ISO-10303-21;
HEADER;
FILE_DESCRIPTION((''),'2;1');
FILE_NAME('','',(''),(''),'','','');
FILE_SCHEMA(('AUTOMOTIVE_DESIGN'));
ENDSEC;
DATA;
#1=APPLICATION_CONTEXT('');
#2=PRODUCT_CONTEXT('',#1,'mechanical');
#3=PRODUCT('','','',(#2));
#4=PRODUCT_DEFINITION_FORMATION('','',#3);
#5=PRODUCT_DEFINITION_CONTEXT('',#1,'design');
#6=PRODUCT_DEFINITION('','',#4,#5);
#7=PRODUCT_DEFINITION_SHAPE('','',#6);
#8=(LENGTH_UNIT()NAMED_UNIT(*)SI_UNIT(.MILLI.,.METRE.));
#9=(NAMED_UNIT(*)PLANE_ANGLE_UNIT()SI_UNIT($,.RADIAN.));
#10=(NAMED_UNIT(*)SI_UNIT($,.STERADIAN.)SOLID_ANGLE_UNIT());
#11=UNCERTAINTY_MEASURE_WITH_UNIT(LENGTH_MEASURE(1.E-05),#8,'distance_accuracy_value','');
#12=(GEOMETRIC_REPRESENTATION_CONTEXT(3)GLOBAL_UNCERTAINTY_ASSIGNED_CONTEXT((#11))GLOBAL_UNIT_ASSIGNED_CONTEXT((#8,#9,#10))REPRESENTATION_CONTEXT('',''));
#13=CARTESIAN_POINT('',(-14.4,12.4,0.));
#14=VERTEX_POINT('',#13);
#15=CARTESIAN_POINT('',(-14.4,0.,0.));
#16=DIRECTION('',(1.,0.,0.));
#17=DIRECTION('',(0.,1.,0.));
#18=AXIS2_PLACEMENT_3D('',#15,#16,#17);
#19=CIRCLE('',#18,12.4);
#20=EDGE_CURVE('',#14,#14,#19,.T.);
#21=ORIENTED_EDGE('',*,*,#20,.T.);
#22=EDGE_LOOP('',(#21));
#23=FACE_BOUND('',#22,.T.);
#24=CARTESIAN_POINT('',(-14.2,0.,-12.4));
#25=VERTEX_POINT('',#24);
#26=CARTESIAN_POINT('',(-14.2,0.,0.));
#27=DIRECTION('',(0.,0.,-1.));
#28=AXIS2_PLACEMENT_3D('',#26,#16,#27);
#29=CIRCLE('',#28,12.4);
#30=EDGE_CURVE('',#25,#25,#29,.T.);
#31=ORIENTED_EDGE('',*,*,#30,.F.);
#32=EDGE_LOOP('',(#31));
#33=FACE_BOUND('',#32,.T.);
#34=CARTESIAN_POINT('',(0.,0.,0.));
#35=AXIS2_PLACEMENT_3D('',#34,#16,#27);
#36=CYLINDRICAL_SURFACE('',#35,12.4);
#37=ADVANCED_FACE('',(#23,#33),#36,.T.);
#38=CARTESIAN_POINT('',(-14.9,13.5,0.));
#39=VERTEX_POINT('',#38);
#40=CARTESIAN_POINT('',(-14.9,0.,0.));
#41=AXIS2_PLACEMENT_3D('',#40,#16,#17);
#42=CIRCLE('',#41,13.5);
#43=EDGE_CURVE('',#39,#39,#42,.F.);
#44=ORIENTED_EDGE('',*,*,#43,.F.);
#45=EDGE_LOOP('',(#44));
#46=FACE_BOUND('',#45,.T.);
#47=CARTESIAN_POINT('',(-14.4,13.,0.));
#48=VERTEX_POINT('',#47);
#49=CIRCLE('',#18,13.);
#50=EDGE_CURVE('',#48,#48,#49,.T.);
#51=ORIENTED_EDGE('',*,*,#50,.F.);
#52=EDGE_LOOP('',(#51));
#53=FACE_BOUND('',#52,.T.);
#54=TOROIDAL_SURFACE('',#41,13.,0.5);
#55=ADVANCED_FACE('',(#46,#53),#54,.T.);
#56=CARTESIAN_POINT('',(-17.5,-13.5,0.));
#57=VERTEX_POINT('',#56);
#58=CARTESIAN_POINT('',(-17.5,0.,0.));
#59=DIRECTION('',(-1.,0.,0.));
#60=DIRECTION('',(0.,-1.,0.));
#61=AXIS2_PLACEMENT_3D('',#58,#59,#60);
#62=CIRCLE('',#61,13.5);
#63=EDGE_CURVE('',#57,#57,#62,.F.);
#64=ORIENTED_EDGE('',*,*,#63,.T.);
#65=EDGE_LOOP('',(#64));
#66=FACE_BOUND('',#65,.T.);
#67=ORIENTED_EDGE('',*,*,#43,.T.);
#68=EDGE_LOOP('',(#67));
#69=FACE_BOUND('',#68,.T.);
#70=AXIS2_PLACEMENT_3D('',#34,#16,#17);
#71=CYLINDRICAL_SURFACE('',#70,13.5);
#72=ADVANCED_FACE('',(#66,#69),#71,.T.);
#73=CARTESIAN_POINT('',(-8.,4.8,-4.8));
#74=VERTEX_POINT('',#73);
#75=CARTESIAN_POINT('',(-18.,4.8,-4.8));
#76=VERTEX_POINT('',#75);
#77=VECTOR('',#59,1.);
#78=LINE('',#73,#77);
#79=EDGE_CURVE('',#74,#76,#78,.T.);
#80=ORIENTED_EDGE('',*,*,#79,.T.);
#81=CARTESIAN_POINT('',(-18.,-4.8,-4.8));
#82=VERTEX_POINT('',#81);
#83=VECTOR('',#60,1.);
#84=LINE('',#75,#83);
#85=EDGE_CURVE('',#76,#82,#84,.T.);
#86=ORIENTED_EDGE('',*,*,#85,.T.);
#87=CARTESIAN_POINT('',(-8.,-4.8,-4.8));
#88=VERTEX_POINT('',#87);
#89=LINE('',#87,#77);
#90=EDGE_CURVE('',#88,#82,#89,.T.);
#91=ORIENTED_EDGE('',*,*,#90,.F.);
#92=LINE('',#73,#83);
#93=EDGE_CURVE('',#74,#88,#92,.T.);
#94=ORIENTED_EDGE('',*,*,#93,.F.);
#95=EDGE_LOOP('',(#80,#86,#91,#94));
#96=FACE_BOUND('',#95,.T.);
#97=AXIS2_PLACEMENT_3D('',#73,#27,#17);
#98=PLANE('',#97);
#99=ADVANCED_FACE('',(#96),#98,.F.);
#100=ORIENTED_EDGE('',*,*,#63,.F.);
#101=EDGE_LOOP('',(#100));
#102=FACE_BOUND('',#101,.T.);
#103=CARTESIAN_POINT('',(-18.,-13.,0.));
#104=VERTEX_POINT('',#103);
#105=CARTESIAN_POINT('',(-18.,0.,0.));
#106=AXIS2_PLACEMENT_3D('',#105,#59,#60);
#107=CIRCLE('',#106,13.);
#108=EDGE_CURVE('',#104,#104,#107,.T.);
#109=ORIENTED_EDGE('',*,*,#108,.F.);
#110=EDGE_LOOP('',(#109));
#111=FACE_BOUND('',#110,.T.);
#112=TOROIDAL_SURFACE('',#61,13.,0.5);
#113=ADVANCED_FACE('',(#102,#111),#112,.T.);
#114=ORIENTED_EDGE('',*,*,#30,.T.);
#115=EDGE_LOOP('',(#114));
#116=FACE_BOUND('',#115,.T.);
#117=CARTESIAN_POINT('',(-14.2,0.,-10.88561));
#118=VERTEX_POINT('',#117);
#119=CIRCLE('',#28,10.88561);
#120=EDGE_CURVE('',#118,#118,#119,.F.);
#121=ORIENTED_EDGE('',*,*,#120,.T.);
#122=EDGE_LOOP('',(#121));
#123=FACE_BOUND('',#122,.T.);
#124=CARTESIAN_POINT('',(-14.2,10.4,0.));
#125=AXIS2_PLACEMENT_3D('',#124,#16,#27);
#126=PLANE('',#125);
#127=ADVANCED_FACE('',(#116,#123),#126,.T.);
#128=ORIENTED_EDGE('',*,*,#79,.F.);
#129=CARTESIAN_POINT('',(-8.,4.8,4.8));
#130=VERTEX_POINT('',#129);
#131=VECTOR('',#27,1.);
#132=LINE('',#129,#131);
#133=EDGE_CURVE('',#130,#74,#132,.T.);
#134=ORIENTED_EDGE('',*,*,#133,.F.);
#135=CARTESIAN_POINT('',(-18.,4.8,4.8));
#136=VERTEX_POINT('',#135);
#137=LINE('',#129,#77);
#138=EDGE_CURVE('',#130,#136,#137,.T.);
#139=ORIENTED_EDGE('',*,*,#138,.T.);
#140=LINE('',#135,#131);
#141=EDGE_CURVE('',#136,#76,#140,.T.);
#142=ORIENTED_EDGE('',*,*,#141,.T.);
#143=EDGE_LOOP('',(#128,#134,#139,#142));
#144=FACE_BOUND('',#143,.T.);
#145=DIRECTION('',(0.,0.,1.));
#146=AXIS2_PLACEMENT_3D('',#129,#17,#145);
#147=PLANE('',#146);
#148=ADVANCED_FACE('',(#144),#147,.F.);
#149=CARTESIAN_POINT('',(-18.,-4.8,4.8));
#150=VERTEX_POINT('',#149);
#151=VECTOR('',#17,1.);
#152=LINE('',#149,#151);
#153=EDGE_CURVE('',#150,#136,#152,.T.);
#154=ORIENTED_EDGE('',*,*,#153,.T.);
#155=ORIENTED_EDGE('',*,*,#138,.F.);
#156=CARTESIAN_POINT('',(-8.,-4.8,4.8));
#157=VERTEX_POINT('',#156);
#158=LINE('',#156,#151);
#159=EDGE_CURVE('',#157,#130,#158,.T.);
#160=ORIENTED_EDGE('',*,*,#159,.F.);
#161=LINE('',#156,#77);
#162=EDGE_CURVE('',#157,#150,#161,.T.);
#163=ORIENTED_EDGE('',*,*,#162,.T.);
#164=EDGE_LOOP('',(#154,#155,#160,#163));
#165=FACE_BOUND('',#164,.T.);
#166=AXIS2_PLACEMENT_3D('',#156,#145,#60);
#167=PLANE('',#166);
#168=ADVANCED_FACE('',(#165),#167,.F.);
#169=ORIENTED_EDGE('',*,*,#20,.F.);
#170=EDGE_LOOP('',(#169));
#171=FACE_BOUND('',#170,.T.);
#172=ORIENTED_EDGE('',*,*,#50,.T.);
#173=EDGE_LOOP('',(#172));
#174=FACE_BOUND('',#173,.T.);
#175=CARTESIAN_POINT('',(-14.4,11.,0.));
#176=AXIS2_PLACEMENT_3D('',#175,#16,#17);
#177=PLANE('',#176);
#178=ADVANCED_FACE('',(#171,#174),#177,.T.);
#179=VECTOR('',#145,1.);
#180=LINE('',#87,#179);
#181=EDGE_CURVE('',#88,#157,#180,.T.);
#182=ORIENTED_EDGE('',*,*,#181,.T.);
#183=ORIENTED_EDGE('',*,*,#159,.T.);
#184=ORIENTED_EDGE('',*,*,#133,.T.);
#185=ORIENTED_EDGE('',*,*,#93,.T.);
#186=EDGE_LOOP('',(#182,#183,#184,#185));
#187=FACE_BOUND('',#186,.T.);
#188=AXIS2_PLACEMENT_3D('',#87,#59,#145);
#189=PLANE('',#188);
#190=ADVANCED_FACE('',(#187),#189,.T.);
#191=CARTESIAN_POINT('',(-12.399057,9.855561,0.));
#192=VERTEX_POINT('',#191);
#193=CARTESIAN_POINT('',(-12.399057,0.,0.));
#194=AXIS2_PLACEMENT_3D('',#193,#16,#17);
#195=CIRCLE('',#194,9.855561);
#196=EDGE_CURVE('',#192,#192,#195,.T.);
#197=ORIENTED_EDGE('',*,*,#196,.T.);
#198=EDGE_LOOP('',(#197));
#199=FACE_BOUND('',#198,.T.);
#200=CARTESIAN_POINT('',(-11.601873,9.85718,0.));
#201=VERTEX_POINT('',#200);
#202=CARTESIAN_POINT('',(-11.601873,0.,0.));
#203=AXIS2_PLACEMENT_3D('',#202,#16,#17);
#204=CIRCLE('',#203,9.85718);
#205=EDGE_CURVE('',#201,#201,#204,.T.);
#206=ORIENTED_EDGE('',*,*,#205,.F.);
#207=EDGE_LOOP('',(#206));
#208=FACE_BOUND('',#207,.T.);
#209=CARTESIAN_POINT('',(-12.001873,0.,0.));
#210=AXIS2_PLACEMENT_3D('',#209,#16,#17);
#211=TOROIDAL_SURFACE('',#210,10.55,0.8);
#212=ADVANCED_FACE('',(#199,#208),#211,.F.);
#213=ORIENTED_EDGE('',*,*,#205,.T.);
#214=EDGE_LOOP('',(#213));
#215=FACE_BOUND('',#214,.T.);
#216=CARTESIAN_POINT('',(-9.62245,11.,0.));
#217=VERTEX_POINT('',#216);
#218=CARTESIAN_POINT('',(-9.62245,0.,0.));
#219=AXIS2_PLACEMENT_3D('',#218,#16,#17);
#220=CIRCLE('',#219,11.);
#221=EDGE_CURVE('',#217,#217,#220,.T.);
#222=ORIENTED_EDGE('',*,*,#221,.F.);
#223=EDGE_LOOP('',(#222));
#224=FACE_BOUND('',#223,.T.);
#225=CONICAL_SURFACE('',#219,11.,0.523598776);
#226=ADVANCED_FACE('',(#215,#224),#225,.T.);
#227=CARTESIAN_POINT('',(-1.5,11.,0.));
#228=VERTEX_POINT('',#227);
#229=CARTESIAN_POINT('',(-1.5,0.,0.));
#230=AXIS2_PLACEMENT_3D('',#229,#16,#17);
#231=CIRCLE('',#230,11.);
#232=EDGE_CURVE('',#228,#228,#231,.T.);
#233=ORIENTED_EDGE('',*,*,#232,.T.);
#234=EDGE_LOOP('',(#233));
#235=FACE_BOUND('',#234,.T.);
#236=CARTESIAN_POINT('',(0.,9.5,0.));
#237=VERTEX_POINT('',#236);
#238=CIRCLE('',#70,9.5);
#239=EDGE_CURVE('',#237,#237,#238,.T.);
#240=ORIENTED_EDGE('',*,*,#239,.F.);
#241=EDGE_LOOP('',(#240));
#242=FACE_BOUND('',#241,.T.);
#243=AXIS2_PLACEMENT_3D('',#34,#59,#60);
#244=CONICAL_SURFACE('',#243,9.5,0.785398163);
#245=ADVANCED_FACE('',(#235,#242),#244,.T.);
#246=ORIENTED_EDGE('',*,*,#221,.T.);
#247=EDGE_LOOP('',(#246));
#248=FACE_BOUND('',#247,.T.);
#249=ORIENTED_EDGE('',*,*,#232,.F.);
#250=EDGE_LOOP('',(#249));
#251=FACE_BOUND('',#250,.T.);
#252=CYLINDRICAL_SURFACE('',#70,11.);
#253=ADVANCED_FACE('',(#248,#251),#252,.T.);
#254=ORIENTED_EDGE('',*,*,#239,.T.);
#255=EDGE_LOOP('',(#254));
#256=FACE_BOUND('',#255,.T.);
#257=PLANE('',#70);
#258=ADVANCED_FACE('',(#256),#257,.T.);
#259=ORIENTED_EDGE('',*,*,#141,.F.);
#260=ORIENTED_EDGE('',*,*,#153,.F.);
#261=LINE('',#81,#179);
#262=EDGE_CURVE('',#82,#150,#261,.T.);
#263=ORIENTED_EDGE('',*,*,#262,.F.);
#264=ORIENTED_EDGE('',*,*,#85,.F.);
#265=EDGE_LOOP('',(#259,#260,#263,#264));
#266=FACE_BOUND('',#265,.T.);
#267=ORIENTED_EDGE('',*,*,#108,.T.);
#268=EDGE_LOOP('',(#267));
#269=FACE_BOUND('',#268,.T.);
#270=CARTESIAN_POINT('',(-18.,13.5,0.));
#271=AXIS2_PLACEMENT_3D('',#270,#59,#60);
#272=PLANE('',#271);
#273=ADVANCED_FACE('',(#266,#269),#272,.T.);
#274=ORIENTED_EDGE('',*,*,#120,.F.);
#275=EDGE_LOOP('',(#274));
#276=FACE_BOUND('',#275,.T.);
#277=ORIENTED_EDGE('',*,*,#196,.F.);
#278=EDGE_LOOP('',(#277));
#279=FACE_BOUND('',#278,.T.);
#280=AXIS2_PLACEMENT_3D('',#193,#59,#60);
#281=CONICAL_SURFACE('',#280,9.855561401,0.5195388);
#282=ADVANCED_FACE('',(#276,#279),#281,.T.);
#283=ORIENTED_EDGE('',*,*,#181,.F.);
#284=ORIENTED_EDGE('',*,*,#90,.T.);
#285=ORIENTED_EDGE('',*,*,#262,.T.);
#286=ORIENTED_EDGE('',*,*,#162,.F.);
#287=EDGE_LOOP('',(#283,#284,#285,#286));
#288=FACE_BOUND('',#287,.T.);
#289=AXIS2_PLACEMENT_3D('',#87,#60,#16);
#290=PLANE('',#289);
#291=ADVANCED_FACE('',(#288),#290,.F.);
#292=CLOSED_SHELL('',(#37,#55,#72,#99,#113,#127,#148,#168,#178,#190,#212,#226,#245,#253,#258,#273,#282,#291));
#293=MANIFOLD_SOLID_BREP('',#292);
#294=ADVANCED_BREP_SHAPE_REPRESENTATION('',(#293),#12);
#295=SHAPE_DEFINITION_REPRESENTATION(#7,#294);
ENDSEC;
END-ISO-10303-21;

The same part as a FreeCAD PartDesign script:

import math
import FreeCAD as App
import Part
import Sketcher

V = App.Vector
Q = App.Units.Quantity


def edges_at(feature, points):
    """Names of the edges that pass closest to the given points."""
    edges = feature.Shape.Edges
    near = lambda p: min(range(len(edges)), key=lambda i: edges[i].distToShape(Part.Vertex(*p))[0])
    return sorted({f"Edge{near(p) + 1}" for p in points})

doc = App.newDocument("Part")
body = doc.addObject("PartDesign::Body", "Body")

# Sketch on XY plane
sketch1 = doc.addObject("Sketcher::SketchObject", "Sketch")
body.addObject(sketch1)
sketch1.AttachmentSupport = (doc.XY_Plane, [""])
sketch1.MapMode = "FlatFace"
sketch1.addGeometry([
    Part.LineSegment(V(0, 0, 0), V(0, 9.5, 0)),  # 0
    Part.LineSegment(V(0, 9.5, 0), V(-1.5, 11, 0)),  # 1
    Part.LineSegment(V(-1.5, 11, 0), V(-9.6, 11, 0)),  # 2
    Part.LineSegment(V(-9.6, 11, 0), V(-11.6, 9.9, 0)),  # 3
    Part.ArcOfCircle(Part.Circle(V(-12, 10.5, 0), V(0, 0, 1), 0.8), math.radians(-120), math.radians(-60)),  # 4
    Part.LineSegment(V(-12.4, 9.9, 0), V(-14.4, 11, 0)),  # 5
    Part.LineSegment(V(-14.4, 11, 0), V(-14.4, 13.5, 0)),  # 6
    Part.LineSegment(V(-14.4, 13.5, 0), V(-18, 13.5, 0)),  # 7
    Part.LineSegment(V(-18, 13.5, 0), V(-18, 0, 0)),  # 8
    Part.LineSegment(V(-18, 0, 0), V(0, 0, 0)),  # 9
], False)
sketch1.addConstraint([
    Sketcher.Constraint("Coincident", 0, 2, 1, 1),
    Sketcher.Constraint("Coincident", 1, 2, 2, 1),
    Sketcher.Constraint("Coincident", 2, 2, 3, 1),
    Sketcher.Constraint("Tangent", 3, 2, 4, 2),
    Sketcher.Constraint("Tangent", 4, 1, 5, 1),
    Sketcher.Constraint("Coincident", 5, 2, 6, 1),
    Sketcher.Constraint("Coincident", 6, 2, 7, 1),
    Sketcher.Constraint("Coincident", 7, 2, 8, 1),
    Sketcher.Constraint("Coincident", 8, 2, 9, 1),
    Sketcher.Constraint("Coincident", 9, 2, 0, 1),
    Sketcher.Constraint("Vertical", 0),
    Sketcher.Constraint("Horizontal", 2),
    Sketcher.Constraint("Vertical", 6),
    Sketcher.Constraint("Horizontal", 7),
    Sketcher.Constraint("Vertical", 8),
    Sketcher.Constraint("Horizontal", 9),
    Sketcher.Constraint("Coincident", 9, 2, -1, 1),
    Sketcher.Constraint("Horizontal", 2, 2, 5, 2),
    Sketcher.Constraint("Radius", 4, 0.8),
    Sketcher.Constraint("DistanceX", 9, 1, 9, 2, 18.0),
    Sketcher.Constraint("Angle", 1, Q("135 deg")),
    Sketcher.Constraint("Angle", 3, Q("-150 deg")),
    Sketcher.Constraint("DistanceX", 7, 2, 7, 1, 3.6),
    Sketcher.Constraint("DistanceY", 0, 1, 0, 2, 9.5),
    Sketcher.Constraint("DistanceY", 6, 1, 6, 2, 2.5),
    Sketcher.Constraint("DistanceY", 8, 2, 8, 1, 13.5),
    Sketcher.Constraint("DistanceY", -1, 1, 4, 3, 10.55),
    Sketcher.Constraint("DistanceX", 2, 2, 2, 1, 8.12245),
])
revolution = doc.addObject("PartDesign::Revolution", "Revolution")
body.addObject(revolution)
revolution.Profile = sketch1
revolution.ReferenceAxis = (sketch1, ["H_Axis"])
revolution.Angle = 360

# Sketch on YZ plane
sketch2 = doc.addObject("Sketcher::SketchObject", "Sketch001")
body.addObject(sketch2)
sketch2.AttachmentSupport = (doc.YZ_Plane, [""])
sketch2.MapMode = "FlatFace"
sketch2.AttachmentOffset = App.Placement(V(0, 0, -18), App.Rotation())
sketch2.addGeometry([
    Part.LineSegment(V(5, -5, 0), V(-5, -5, 0)),
    Part.LineSegment(V(-5, -5, 0), V(-5, 5, 0)),
    Part.LineSegment(V(-5, 5, 0), V(5, 5, 0)),
    Part.LineSegment(V(5, 5, 0), V(5, -5, 0)),
], False)
sketch2.addConstraint([
    Sketcher.Constraint("Coincident", 0, 2, 1, 1),
    Sketcher.Constraint("Coincident", 1, 2, 2, 1),
    Sketcher.Constraint("Coincident", 2, 2, 3, 1),
    Sketcher.Constraint("Coincident", 3, 2, 0, 1),
    Sketcher.Constraint("Horizontal", 0),
    Sketcher.Constraint("Vertical", 1),
    Sketcher.Constraint("Horizontal", 2),
    Sketcher.Constraint("Vertical", 3),
    Sketcher.Constraint("Symmetric", 0, 2, 2, 2, -1, 1),
    Sketcher.Constraint("Equal", 2, 1),
    Sketcher.Constraint("DistanceX", 0, 2, 0, 1, 9.6),
])
pocket1 = doc.addObject("PartDesign::Pocket", "Pocket")
body.addObject(pocket1)
pocket1.Profile = sketch2
pocket1.Length = 10
pocket1.Reversed = True
doc.recompute()

fillet = doc.addObject("PartDesign::Fillet", "Fillet")
body.addObject(fillet)
fillet.Base = (pocket1, edges_at(pocket1, [(-14.4, -13.5, 0), (-18, -13.5, 0)]))
fillet.Radius = 0.5

# Sketch on XY plane
sketch3 = doc.addObject("Sketcher::SketchObject", "Sketch002")
body.addObject(sketch3)
sketch3.AttachmentSupport = (doc.XY_Plane, [""])
sketch3.MapMode = "FlatFace"
sketch3.addGeometry([
    Part.LineSegment(V(-15.7, 12.4, 0), V(-15.7, 10.4, 0)),
    Part.LineSegment(V(-15.7, 10.4, 0), V(-14.2, 10.4, 0)),
    Part.LineSegment(V(-14.2, 10.4, 0), V(-14.2, 12.4, 0)),
    Part.LineSegment(V(-14.2, 12.4, 0), V(-15.7, 12.4, 0)),
], False)
sketch3.addConstraint([
    Sketcher.Constraint("Coincident", 0, 2, 1, 1),
    Sketcher.Constraint("Coincident", 1, 2, 2, 1),
    Sketcher.Constraint("Coincident", 2, 2, 3, 1),
    Sketcher.Constraint("Coincident", 3, 2, 0, 1),
    Sketcher.Constraint("Vertical", 0),
    Sketcher.Constraint("Horizontal", 1),
    Sketcher.Constraint("Vertical", 2),
    Sketcher.Constraint("Horizontal", 3),
    Sketcher.Constraint("DistanceY", 0, 2, 0, 1, 2.0),
    Sketcher.Constraint("DistanceX", 1, 1, 1, 2, 1.5),
    Sketcher.Constraint("DistanceX", 0, 2, -1, 1, 15.7),
    Sketcher.Constraint("DistanceY", -1, 1, 0, 2, 10.4),
])
revolution2 = doc.addObject("PartDesign::Revolution", "Revolution001")
body.addObject(revolution2)
revolution2.Profile = sketch3
revolution2.ReferenceAxis = (sketch3, ["H_Axis"])
revolution2.Angle = 360

doc.recompute()
